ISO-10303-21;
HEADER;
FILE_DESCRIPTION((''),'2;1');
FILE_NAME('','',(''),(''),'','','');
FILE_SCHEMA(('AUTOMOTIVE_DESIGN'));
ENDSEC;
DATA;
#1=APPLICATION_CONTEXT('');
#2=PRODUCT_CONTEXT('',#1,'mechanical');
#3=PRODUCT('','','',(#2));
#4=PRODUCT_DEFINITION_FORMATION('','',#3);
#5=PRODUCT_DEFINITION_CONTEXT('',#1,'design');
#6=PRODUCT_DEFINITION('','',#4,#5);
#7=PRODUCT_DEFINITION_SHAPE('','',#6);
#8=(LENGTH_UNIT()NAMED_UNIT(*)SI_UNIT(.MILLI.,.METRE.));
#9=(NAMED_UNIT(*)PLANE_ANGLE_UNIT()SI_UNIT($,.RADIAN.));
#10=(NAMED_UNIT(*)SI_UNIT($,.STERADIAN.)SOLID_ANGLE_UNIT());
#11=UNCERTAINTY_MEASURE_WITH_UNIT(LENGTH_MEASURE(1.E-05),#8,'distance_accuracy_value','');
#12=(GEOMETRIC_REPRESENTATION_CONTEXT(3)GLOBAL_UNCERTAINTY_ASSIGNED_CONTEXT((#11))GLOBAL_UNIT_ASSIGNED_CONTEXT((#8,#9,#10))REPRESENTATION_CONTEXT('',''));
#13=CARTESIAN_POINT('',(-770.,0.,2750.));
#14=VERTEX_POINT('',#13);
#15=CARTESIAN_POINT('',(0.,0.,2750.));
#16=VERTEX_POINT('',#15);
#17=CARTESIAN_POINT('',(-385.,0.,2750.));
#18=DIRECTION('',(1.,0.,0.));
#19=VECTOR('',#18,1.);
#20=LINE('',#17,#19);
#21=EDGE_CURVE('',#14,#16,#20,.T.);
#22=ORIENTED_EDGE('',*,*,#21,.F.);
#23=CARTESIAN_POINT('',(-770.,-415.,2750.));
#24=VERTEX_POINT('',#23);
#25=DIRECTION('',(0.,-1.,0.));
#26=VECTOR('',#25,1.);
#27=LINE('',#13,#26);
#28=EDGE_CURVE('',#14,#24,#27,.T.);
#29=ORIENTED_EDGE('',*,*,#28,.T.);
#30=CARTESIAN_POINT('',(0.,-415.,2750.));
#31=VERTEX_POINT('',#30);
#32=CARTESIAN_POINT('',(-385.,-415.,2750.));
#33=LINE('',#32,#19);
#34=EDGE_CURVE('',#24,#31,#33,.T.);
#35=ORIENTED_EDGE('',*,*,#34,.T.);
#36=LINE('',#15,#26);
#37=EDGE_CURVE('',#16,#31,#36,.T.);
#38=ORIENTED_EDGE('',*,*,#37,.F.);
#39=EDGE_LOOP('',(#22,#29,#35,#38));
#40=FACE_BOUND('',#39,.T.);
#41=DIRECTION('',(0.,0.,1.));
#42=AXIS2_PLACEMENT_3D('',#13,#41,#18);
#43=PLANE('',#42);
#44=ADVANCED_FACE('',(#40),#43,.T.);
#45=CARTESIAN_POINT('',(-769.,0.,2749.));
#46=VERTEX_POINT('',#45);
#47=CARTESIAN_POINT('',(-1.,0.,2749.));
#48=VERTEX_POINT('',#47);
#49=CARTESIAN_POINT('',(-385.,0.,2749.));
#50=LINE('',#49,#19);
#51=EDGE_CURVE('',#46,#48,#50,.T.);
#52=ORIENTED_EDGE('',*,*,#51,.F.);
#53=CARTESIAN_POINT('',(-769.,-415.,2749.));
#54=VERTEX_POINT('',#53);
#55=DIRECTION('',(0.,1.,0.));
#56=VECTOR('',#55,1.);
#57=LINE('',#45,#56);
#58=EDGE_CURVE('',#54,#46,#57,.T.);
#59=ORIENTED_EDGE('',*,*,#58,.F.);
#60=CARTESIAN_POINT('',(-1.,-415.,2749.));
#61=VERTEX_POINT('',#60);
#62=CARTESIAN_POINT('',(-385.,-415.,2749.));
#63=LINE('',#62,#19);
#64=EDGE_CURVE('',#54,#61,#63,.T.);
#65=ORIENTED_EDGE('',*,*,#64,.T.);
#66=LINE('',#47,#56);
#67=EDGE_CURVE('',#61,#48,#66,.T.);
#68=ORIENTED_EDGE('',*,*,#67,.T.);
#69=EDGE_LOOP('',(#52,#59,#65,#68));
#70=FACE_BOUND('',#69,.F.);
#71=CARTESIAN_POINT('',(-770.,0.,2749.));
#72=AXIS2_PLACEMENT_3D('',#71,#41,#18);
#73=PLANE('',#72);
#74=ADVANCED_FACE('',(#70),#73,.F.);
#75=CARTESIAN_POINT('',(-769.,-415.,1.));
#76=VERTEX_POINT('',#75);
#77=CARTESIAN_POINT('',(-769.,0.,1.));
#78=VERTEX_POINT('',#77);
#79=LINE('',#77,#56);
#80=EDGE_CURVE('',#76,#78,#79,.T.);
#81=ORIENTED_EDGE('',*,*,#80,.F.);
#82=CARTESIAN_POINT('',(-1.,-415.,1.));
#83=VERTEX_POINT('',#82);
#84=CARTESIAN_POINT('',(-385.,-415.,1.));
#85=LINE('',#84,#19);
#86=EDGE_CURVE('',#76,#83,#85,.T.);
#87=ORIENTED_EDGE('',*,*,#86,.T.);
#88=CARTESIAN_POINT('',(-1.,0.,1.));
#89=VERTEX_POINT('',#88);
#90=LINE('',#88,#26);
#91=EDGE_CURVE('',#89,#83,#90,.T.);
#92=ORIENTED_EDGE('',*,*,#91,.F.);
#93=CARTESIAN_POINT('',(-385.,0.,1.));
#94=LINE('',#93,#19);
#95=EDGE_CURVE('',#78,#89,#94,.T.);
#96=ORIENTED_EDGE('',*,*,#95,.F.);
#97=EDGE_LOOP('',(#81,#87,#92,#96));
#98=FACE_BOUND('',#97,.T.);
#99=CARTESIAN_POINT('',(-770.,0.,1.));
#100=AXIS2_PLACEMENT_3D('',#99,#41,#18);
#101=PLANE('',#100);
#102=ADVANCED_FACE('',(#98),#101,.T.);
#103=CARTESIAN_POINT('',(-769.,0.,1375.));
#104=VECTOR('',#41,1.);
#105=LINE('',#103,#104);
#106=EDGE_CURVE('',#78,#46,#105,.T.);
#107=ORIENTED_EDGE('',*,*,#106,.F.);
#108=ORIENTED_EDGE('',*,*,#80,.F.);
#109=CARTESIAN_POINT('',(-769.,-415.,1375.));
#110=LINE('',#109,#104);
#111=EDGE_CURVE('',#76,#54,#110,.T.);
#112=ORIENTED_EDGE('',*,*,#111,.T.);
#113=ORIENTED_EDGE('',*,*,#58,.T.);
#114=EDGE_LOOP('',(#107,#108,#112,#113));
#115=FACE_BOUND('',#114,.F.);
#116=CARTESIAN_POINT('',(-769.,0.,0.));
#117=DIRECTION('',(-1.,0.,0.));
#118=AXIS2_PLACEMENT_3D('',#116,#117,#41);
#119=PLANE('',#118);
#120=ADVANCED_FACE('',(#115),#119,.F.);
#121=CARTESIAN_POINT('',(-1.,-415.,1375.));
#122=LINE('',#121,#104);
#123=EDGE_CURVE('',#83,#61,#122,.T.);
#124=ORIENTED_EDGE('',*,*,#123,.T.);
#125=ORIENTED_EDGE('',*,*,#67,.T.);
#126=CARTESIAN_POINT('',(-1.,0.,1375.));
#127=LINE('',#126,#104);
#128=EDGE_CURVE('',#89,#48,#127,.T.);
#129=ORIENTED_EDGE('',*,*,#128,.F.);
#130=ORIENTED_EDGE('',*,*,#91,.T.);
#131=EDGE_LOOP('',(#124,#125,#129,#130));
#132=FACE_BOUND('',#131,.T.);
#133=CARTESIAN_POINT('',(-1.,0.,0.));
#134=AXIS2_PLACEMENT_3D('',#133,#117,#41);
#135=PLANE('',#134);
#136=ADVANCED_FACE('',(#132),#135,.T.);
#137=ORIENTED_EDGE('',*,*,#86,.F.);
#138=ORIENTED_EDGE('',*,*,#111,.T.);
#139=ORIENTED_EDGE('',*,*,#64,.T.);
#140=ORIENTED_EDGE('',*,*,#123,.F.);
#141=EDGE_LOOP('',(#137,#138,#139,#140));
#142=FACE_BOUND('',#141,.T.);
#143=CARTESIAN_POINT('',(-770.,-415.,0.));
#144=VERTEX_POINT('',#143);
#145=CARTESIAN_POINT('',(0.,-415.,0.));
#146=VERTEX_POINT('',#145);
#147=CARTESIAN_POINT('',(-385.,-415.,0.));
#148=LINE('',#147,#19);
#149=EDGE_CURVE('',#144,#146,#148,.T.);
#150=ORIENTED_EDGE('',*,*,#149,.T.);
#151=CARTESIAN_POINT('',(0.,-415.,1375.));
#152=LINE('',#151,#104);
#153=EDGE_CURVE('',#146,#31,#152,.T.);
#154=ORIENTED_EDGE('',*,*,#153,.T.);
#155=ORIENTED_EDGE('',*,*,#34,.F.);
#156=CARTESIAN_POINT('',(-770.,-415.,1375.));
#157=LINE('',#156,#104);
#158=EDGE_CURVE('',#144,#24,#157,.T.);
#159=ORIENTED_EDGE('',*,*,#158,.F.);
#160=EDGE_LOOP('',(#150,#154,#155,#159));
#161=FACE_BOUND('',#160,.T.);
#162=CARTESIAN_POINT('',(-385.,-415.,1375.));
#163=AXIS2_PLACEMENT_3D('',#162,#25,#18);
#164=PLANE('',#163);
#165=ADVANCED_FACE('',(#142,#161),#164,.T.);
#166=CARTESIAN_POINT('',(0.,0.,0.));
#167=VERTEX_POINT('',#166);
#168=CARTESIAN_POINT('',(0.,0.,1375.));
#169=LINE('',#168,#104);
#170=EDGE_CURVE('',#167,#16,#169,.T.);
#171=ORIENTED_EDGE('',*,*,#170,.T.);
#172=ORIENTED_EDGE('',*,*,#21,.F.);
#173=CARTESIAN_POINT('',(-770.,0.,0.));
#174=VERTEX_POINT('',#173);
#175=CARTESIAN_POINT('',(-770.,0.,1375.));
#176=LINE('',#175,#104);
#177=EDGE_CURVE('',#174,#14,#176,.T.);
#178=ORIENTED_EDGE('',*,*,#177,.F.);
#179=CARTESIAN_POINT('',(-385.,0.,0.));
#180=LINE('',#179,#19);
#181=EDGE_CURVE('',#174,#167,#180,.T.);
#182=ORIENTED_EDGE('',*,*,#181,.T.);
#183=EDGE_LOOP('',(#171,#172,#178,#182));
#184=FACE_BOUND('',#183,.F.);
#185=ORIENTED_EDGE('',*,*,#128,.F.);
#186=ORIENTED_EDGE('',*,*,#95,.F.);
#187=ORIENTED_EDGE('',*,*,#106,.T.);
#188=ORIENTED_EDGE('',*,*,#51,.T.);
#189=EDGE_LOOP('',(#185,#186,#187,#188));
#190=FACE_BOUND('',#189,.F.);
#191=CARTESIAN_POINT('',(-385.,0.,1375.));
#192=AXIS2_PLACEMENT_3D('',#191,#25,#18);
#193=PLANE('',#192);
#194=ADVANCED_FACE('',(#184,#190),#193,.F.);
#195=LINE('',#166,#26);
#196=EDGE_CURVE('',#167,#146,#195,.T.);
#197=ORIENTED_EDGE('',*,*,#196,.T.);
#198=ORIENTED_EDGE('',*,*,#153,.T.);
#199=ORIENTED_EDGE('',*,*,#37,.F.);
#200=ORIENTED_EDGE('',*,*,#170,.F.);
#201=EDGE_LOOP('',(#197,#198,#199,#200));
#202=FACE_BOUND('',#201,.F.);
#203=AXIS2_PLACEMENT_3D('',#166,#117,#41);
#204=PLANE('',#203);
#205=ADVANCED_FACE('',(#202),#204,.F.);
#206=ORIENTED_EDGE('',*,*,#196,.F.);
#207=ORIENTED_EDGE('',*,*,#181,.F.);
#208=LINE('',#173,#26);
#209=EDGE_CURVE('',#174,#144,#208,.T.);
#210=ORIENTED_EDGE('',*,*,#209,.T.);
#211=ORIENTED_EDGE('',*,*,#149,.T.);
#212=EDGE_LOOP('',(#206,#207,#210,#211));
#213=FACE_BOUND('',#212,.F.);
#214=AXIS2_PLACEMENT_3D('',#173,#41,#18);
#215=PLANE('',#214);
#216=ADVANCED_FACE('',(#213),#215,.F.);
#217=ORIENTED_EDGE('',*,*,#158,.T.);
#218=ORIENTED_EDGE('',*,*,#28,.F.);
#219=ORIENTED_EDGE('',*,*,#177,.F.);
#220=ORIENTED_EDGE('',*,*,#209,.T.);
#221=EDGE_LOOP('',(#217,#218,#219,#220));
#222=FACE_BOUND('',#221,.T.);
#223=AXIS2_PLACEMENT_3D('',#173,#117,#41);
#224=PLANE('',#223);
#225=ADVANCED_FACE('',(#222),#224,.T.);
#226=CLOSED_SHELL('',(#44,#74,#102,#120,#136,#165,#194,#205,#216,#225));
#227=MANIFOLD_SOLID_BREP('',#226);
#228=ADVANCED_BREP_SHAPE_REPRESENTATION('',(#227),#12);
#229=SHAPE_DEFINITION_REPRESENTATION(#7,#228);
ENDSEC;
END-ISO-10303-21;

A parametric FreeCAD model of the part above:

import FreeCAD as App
import Part
import Sketcher
from FreeCAD import Vector


def faces_at(feature, points):
    """Names of the faces that lie closest to the given points."""
    faces = feature.Shape.Faces
    near = lambda p: min(range(len(faces)), key=lambda i: faces[i].distToShape(Part.Vertex(*p))[0])
    return sorted({f"Face{near(p) + 1}" for p in points})

doc = App.newDocument("Part")
params = doc.addObject("Spreadsheet::Sheet", "Params")
for row, (alias, value) in enumerate([
    ("sketch1_width", "770 mm"),
    ("sketch1_height", "2750 mm"),
    ("pad1_length", "415 mm"),
    ("thickness_wall", "1 mm"),
], start=1):
    params.set(f"A{row}", alias)
    params.set(f"B{row}", "=" + value)
    params.setAlias(f"B{row}", alias)

body = doc.addObject("PartDesign::Body", "Body")

# Sketch on XZ plane
sketch1 = body.newObject("Sketcher::SketchObject", "Sketch")
sketch1.AttachmentSupport = (doc.getObject("XZ_Plane"), [""])
sketch1.MapMode = "FlatFace"
sketch1.addGeometry(Part.LineSegment(Vector(-770, 2750, 0), Vector(-770, 0, 0)), False)
sketch1.addGeometry(Part.LineSegment(Vector(-770, 0, 0), Vector(0, 0, 0)), False)
sketch1.addGeometry(Part.LineSegment(Vector(0, 0, 0), Vector(0, 2750, 0)), False)
sketch1.addGeometry(Part.LineSegment(Vector(0, 2750, 0), Vector(-770, 2750, 0)), False)
sketch1.addConstraint(Sketcher.Constraint("Coincident", 0, 2, 1, 1))
sketch1.addConstraint(Sketcher.Constraint("Coincident", 1, 2, 2, 1))
sketch1.addConstraint(Sketcher.Constraint("Coincident", 2, 2, 3, 1))
sketch1.addConstraint(Sketcher.Constraint("Coincident", 3, 2, 0, 1))
sketch1.addConstraint(Sketcher.Constraint("Vertical", 0))
sketch1.addConstraint(Sketcher.Constraint("Horizontal", 1))
sketch1.addConstraint(Sketcher.Constraint("Vertical", 2))
sketch1.addConstraint(Sketcher.Constraint("Horizontal", 3))
sketch1.addConstraint(Sketcher.Constraint("Coincident", 1, 2, -1, 1))
sketch1.addConstraint(Sketcher.Constraint("DistanceX", 1, 1, 1, 2, 770.0))
sketch1.addConstraint(Sketcher.Constraint("DistanceY", 0, 2, 0, 1, 2750.0))
sketch1.setExpression("Constraints[9]", "Params.sketch1_width")
sketch1.setExpression("Constraints[10]", "Params.sketch1_height")
pad1 = body.newObject("PartDesign::Pad", "Pad")
pad1.Profile = sketch1
pad1.setExpression("Length", "Params.pad1_length")
doc.recompute()

thickness = body.newObject("PartDesign::Thickness", "Thickness")
thickness.Base = (pad1, faces_at(pad1, [(-385, -415, 1375), (-385, 0, 1375)]))
thickness.setExpression("Value", "Params.thickness_wall")
thickness.Reversed = True
thickness.Join = "Arc"

doc.recompute()
